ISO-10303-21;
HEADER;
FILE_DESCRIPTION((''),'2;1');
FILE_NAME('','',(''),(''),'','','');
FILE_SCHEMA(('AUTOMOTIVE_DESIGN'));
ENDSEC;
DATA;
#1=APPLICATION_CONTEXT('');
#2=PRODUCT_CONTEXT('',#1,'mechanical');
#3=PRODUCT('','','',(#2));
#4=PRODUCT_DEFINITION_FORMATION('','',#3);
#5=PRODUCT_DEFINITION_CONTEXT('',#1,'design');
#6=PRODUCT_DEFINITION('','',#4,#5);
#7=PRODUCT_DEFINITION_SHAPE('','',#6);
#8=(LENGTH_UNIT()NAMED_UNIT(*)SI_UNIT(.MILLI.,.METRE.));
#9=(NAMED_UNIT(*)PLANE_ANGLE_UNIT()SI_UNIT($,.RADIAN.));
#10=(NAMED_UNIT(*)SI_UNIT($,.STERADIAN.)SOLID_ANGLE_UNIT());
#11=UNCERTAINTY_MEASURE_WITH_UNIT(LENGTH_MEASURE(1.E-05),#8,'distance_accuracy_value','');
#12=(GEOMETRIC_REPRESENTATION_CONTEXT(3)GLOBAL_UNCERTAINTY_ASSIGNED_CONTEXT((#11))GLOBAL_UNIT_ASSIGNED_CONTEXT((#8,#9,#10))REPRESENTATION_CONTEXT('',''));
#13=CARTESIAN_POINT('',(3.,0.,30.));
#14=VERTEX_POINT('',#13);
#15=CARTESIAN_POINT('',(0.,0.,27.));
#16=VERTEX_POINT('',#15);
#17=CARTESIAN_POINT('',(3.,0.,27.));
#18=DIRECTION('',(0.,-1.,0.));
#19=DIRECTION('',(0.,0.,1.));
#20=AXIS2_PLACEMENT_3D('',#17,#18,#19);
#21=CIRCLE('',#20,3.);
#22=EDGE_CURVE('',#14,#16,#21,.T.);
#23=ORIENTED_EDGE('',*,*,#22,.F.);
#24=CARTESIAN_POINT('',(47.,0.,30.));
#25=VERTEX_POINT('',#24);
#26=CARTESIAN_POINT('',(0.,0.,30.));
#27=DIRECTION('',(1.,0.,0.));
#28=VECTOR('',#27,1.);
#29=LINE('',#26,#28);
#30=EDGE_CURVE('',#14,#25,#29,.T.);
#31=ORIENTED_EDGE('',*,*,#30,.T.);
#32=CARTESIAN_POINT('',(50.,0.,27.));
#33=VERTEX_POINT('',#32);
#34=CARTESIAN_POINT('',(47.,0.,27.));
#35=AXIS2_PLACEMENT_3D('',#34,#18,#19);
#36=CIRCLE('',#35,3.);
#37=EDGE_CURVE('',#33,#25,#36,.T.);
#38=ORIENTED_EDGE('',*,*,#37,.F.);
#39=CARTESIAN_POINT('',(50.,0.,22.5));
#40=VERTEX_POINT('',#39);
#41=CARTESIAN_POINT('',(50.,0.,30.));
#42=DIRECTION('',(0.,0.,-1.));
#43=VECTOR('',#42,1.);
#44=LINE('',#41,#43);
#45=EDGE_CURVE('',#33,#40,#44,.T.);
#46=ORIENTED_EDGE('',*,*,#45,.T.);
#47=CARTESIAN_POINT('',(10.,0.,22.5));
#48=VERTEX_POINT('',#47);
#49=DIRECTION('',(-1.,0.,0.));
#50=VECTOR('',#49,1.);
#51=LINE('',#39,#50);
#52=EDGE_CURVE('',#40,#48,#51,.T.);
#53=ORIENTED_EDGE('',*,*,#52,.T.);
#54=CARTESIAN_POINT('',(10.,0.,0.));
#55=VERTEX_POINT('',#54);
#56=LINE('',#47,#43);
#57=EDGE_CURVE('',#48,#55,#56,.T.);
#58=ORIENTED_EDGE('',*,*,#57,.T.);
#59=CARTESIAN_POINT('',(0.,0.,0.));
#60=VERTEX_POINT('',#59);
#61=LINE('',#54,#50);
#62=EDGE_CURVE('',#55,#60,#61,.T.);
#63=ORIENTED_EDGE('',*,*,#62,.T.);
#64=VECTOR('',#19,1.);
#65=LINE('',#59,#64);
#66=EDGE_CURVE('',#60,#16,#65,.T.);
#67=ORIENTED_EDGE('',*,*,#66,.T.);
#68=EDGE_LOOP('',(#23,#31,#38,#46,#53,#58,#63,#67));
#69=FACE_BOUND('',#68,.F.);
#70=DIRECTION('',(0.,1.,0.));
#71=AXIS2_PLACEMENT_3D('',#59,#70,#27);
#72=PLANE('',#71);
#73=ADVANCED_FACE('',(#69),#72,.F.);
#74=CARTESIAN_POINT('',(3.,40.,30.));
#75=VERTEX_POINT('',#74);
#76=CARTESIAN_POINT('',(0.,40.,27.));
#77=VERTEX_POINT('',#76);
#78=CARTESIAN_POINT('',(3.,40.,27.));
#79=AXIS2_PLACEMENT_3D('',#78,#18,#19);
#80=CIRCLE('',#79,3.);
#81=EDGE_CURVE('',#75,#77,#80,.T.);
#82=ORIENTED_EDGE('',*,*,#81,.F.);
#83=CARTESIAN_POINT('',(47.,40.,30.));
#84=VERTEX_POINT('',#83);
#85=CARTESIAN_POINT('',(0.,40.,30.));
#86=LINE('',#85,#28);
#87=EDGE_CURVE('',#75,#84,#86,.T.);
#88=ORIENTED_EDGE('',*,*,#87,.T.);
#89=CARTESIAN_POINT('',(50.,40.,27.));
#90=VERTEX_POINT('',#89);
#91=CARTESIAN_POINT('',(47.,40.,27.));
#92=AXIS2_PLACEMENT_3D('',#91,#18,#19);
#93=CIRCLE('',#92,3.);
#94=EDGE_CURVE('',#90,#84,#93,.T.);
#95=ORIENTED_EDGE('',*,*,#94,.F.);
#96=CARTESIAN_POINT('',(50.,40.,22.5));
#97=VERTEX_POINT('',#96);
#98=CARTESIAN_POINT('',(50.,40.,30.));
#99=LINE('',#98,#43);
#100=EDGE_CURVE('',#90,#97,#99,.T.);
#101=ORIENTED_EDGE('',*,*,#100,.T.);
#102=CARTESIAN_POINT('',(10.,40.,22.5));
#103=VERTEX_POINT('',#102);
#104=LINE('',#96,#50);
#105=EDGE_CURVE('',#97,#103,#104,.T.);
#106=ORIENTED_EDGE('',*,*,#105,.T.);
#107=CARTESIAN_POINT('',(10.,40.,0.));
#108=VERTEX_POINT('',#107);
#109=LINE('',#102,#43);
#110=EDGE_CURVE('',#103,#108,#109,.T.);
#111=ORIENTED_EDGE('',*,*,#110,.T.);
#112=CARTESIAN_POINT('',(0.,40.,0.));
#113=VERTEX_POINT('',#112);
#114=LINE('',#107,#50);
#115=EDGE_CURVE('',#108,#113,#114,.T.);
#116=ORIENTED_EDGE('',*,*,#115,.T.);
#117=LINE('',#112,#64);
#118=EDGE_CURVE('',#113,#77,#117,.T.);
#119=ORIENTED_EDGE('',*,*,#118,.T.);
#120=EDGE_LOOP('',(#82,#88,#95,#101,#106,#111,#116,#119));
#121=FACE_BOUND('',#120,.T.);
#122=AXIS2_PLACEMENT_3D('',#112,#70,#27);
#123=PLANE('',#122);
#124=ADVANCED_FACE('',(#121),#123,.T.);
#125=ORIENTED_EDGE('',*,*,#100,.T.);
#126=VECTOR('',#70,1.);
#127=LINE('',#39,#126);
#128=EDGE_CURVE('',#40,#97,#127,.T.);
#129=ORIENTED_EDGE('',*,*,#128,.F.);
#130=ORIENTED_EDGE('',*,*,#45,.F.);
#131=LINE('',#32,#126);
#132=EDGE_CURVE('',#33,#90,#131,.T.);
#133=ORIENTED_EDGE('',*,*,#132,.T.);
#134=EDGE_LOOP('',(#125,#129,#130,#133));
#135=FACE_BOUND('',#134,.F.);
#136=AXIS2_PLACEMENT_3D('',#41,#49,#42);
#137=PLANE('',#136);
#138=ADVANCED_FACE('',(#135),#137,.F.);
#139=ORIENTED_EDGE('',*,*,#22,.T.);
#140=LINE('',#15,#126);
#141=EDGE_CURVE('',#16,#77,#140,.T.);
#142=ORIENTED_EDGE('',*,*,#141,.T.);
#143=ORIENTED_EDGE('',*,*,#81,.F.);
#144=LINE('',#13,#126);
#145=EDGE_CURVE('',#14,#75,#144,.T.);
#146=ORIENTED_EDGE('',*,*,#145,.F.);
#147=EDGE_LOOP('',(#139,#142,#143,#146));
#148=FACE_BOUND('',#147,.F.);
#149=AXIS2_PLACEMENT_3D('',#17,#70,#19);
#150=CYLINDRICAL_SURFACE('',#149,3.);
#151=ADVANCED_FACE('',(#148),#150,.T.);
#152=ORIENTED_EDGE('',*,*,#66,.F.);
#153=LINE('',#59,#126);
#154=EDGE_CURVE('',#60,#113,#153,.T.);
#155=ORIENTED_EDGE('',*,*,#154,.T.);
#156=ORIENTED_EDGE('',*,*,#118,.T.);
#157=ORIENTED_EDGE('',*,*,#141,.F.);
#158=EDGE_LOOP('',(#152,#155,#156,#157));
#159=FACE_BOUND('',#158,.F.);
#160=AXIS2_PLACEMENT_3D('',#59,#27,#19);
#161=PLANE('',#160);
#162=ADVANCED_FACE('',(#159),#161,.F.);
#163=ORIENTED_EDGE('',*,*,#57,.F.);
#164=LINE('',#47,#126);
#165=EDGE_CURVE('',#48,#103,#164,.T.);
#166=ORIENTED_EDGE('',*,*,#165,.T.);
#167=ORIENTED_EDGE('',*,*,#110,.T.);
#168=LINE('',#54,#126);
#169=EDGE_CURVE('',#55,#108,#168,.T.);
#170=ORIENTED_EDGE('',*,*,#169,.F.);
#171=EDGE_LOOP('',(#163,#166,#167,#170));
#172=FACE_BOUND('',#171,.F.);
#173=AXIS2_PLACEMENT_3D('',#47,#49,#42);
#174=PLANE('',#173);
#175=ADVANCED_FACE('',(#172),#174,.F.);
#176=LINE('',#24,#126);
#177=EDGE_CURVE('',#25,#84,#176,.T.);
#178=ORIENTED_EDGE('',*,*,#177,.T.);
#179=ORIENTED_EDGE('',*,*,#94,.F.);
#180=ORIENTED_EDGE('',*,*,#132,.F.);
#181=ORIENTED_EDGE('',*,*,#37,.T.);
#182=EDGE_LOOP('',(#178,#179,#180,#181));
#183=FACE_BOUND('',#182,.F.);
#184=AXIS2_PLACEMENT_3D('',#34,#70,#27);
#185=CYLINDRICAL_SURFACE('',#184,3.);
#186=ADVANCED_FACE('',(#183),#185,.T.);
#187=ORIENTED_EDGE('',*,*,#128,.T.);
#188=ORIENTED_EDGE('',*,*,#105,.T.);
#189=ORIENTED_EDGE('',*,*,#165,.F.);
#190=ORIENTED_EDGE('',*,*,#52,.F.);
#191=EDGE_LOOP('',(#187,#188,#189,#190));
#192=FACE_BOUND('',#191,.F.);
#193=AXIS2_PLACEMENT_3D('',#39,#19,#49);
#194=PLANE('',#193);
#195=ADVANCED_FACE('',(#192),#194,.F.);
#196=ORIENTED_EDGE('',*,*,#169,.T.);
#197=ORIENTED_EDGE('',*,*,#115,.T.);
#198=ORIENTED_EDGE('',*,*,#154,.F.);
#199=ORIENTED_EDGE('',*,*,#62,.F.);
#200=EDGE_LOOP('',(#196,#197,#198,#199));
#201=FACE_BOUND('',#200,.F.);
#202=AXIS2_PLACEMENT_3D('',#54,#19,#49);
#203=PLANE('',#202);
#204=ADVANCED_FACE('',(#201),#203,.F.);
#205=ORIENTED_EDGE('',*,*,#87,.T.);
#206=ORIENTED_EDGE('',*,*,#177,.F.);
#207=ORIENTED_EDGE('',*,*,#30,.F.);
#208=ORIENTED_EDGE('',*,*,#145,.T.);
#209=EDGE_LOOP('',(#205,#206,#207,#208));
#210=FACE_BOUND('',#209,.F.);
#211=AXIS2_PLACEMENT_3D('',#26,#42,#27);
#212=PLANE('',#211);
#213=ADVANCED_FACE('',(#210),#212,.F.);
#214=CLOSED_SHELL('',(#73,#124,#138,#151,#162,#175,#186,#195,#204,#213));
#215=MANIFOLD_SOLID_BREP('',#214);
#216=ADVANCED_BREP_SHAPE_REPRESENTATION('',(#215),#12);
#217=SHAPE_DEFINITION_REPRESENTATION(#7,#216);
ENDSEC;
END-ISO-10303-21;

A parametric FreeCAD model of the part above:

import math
import FreeCAD as App
import Part
import Sketcher

V = App.Vector


def edges_at(feature, points):
    """Names of the edges that pass closest to the given points."""
    edges = feature.Shape.Edges
    near = lambda p: min(range(len(edges)), key=lambda i: edges[i].distToShape(Part.Vertex(*p))[0])
    return sorted({f"Edge{near(p) + 1}" for p in points})


def add_polygon(sketch, points):
    """Adds a closed chain of lines whose ends are joined by coincident constraints."""
    first, n = sketch.GeometryCount, len(points)
    for a, b in zip(points, points[1:] + points[:1]):
        sketch.addGeometry(Part.LineSegment(App.Vector(*a, 0), App.Vector(*b, 0)), False)
    for i in range(n):
        sketch.addConstraint(Sketcher.Constraint("Coincident", first + i, 2, first + (i + 1) % n, 1))

doc = App.newDocument("Part")
body = doc.addObject("PartDesign::Body", "Body")

sketch1 = body.newObject("Sketcher::SketchObject", "Sketch")
sketch1.AttachmentSupport = (doc.getObject("XZ_Plane"), [""])
sketch1.MapMode = "FlatFace"
add_polygon(sketch1, [(10, 0), (0, 0), (0, 30), (50, 30), (50, 22.5), (10, 22.5)])
sketch1.addConstraint(Sketcher.Constraint("Horizontal", 0))
sketch1.addConstraint(Sketcher.Constraint("Vertical", 1))
sketch1.addConstraint(Sketcher.Constraint("Horizontal", 2))
sketch1.addConstraint(Sketcher.Constraint("Vertical", 3))
sketch1.addConstraint(Sketcher.Constraint("Horizontal", 4))
sketch1.addConstraint(Sketcher.Constraint("Vertical", 5))
sketch1.addConstraint(Sketcher.Constraint("Coincident", 0, 2, -1, 1))
sketch1.addConstraint(Sketcher.Constraint("DistanceX", 0, 2, 0, 1, 10.0))
sketch1.addConstraint(Sketcher.Constraint("DistanceX", 2, 1, 2, 2, 50.0))
sketch1.addConstraint(Sketcher.Constraint("DistanceY", 1, 1, 1, 2, 30.0))
sketch1.addConstraint(Sketcher.Constraint("DistanceY", 3, 2, 3, 1, 7.5))
pad1 = body.newObject("PartDesign::Pad", "Pad")
pad1.Profile = sketch1
pad1.Length = 40
pad1.Reversed = True

sketch2 = body.newObject("Sketcher::SketchObject", "Sketch001")
sketch2.AttachmentSupport = (doc.getObject("YZ_Plane"), [""])
sketch2.MapMode = "FlatFace"
sketch2.AttachmentOffset = App.Placement(V(0, 0, 10), App.Rotation())
sketch2.addGeometry(Part.LineSegment(V(23.25, 7.5, 0), V(23.25, 15, 0)), False)
sketch2.addGeometry(Part.ArcOfCircle(Part.Circle(V(20, 15, 0), V(0, 0, 1), 3.25), math.radians(0), math.radians(180)), False)
sketch2.addGeometry(Part.LineSegment(V(16.75, 15, 0), V(16.75, 7.5, 0)), False)
sketch2.addGeometry(Part.ArcOfCircle(Part.Circle(V(20, 7.5, 0), V(0, 0, 1), 3.25), math.radians(180), math.radians(360)), False)
sketch2.addConstraint(Sketcher.Constraint("Tangent", 0, 2, 1, 1))
sketch2.addConstraint(Sketcher.Constraint("Tangent", 1, 2, 2, 1))
sketch2.addConstraint(Sketcher.Constraint("Tangent", 2, 2, 3, 1))
sketch2.addConstraint(Sketcher.Constraint("Tangent", 3, 2, 0, 1))
sketch2.addConstraint(Sketcher.Constraint("Vertical", 0))
sketch2.addConstraint(Sketcher.Constraint("Vertical", 2))
sketch2.addConstraint(Sketcher.Constraint("Radius", 1, 3.25))
sketch2.addConstraint(Sketcher.Constraint("DistanceY", 0, 1, 0, 2, 7.5))
sketch2.addConstraint(Sketcher.Constraint("DistanceY", -1, 1, 3, 3, 7.5))
sketch2.addConstraint(Sketcher.Constraint("DistanceX", -1, 1, 1, 3, 20.0))
pocket1 = body.newObject("PartDesign::Pocket", "Pocket")
pocket1.Profile = sketch2
pocket1.Type = "ThroughAll"
pocket1.Reversed = True
doc.recompute()

fillet = body.newObject("PartDesign::Fillet", "Fillet")
fillet.Base = (pocket1, edges_at(pocket1, [(0, 20, 30), (50, 20, 30)]))
fillet.Radius = 3

doc.recompute()
